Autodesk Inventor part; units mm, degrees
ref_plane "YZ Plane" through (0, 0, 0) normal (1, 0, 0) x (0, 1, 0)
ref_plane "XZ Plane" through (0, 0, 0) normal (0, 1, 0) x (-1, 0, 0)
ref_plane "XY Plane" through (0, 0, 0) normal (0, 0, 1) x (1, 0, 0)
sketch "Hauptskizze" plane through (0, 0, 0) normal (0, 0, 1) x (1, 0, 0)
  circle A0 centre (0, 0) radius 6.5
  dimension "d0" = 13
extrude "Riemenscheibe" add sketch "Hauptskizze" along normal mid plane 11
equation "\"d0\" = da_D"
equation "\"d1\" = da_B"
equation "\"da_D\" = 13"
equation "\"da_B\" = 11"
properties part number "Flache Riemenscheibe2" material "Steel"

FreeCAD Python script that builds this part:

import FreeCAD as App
import Part
import Sketcher

doc = App.newDocument("Part")
params = doc.addObject("Spreadsheet::Sheet", "Params")
for row, (alias, value) in enumerate([
    ("sketch1_diameter", "13 mm"),
    ("pad1_length", "11 mm"),
], start=1):
    params.set(f"A{row}", alias)
    params.set(f"B{row}", "=" + value)
    params.setAlias(f"B{row}", alias)

body = doc.addObject("PartDesign::Body", "Body")

# Sketch on XY plane
sketch1 = body.newObject("Sketcher::SketchObject", "Sketch")
sketch1.AttachmentSupport = (doc.getObject("XY_Plane"), [""])
sketch1.MapMode = "FlatFace"
sketch1.addGeometry(Part.Circle(App.Vector(0, 0, 0), App.Vector(0, 0, 1), 6), False)
sketch1.addConstraint(Sketcher.Constraint("Coincident", 0, 3, -1, 1))
sketch1.addConstraint(Sketcher.Constraint("Diameter", 0, 13.0))
sketch1.setExpression("Constraints[1]", "Params.sketch1_diameter")
pad1 = body.newObject("PartDesign::Pad", "Pad")
pad1.Profile = sketch1
pad1.setExpression("Length", "Params.pad1_length")
pad1.Midplane = True

doc.recompute()
